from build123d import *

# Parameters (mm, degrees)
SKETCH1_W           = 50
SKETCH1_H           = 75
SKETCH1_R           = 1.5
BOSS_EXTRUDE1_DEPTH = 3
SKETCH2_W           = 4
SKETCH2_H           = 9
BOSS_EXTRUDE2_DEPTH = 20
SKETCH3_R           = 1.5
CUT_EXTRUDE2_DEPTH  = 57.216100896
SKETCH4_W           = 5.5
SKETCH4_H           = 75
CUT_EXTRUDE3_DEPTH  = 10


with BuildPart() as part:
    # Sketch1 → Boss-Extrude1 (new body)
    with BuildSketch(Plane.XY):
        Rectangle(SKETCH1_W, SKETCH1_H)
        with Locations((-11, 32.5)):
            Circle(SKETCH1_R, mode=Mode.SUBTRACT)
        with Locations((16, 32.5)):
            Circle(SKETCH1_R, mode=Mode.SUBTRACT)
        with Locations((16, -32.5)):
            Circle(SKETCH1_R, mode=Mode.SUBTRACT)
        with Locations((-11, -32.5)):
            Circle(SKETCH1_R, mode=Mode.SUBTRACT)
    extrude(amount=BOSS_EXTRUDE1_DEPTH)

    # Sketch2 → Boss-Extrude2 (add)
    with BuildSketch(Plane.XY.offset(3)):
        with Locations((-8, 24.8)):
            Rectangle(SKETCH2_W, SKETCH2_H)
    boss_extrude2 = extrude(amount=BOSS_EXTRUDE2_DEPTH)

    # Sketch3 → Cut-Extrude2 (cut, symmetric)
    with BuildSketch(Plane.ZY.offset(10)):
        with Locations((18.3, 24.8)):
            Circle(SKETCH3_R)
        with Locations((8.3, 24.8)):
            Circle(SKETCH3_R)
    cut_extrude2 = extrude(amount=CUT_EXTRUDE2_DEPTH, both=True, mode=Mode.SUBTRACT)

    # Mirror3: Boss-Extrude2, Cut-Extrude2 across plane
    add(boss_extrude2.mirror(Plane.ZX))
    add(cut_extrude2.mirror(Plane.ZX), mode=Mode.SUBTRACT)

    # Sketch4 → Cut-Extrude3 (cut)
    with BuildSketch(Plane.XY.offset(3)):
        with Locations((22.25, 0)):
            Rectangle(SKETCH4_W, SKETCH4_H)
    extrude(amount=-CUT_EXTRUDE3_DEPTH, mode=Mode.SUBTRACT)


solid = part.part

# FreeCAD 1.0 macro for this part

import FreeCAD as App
import Part
import Sketcher

V = App.Vector
Q = App.Units.Quantity


def add_polygon(sketch, points):
    """Adds a closed chain of lines whose ends are joined by coincident constraints."""
    first, n = sketch.GeometryCount, len(points)
    for a, b in zip(points, points[1:] + points[:1]):
        sketch.addGeometry(Part.LineSegment(App.Vector(*a, 0), App.Vector(*b, 0)), False)
    for i in range(n):
        sketch.addConstraint(Sketcher.Constraint("Coincident", first + i, 2, first + (i + 1) % n, 1))

doc = App.newDocument("Part")
body = doc.addObject("PartDesign::Body", "Body")

sketch1 = body.newObject("Sketcher::SketchObject", "Sketch")
sketch1.AttachmentSupport = (doc.getObject("XY_Plane"), [""])
sketch1.MapMode = "FlatFace"
add_polygon(sketch1, [(-25, 37.5), (-25, -37.5), (25, -37.5), (25, 37.5)])
sketch1.addGeometry(Part.Circle(V(-11, -32.5, 0), V(0, 0, 1), 1.5), False)
sketch1.addGeometry(Part.Circle(V(16, -32.5, 0), V(0, 0, 1), 1.5), False)
sketch1.addGeometry(Part.Circle(V(-11, 32.5, 0), V(0, 0, 1), 1.5), False)
sketch1.addGeometry(Part.Circle(V(16, 32.5, 0), V(0, 0, 1), 1.5), False)
sketch1.addConstraint([
    Sketcher.Constraint("Vertical", 0),
    Sketcher.Constraint("Horizontal", 1),
    Sketcher.Constraint("Vertical", 2),
    Sketcher.Constraint("Horizontal", 3),
    Sketcher.Constraint("Equal", 4, 5),
    Sketcher.Constraint("Equal", 5, 6),
    Sketcher.Constraint("Equal", 6, 7),
    Sketcher.Constraint("Symmetric", 0, 2, 2, 2, -1, 1),
    Sketcher.Constraint("Symmetric", 4, 3, 6, 3, -1),
    Sketcher.Constraint("Symmetric", 5, 3, 7, 3, -1),
    Sketcher.Constraint("Horizontal", 4, 3, 5, 3),
    Sketcher.Constraint("Diameter", 4, Q("3 mm")),
    Sketcher.Constraint("DistanceX", 1, 1, 1, 2, Q("50 mm")),
    Sketcher.Constraint("DistanceY", 0, 2, 0, 1, Q("75 mm")),
    Sketcher.Constraint("DistanceX", 4, 3, -1, 1, Q("11 mm")),
    Sketcher.Constraint("DistanceX", -1, 1, 5, 3, Q("16 mm")),
    Sketcher.Constraint("DistanceY", 4, 3, 6, 3, Q("65 mm")),
])
pad1 = body.newObject("PartDesign::Pad", "Pad")
pad1.Profile = sketch1
pad1.Length = 3

sketch2 = body.newObject("Sketcher::SketchObject", "Sketch001")
sketch2.AttachmentSupport = (doc.getObject("XY_Plane"), [""])
sketch2.MapMode = "FlatFace"
sketch2.AttachmentOffset = App.Placement(V(0, 0, 3), App.Rotation())
add_polygon(sketch2, [(-10, 29.3), (-10, 20.3), (-6, 20.3), (-6, 29.3)])
sketch2.addConstraint([
    Sketcher.Constraint("Vertical", 0),
    Sketcher.Constraint("Horizontal", 1),
    Sketcher.Constraint("Vertical", 2),
    Sketcher.Constraint("Horizontal", 3),
    Sketcher.Constraint("DistanceX", 1, 1, 1, 2, Q("4 mm")),
    Sketcher.Constraint("DistanceY", 0, 2, 0, 1, Q("9 mm")),
    Sketcher.Constraint("DistanceX", 0, 2, -1, 1, Q("10 mm")),
    Sketcher.Constraint("DistanceY", -1, 1, 0, 2, Q("20.3 mm")),
])
pad2 = body.newObject("PartDesign::Pad", "Pad001")
pad2.Profile = sketch2
pad2.Length = 20

sketch3 = body.newObject("Sketcher::SketchObject", "Sketch002")
sketch3.AttachmentSupport = (doc.getObject("YZ_Plane"), [""])
sketch3.MapMode = "FlatFace"
sketch3.AttachmentOffset = App.Placement(V(0, 0, -10), App.Rotation())
sketch3.addGeometry([
    Part.Circle(V(24.8, 18.3, 0), V(0, 0, 1), 1.5),
    Part.Circle(V(24.8, 8.3, 0), V(0, 0, 1), 1.5),
], False)
sketch3.addConstraint([
    Sketcher.Constraint("Equal", 0, 1),
    Sketcher.Constraint("Vertical", 0, 3, 1, 3),
    Sketcher.Constraint("Diameter", 0, Q("3 mm")),
    Sketcher.Constraint("DistanceY", 1, 3, 0, 3, Q("10 mm")),
    Sketcher.Constraint("DistanceX", -1, 1, 0, 3, Q("24.8 mm")),
    Sketcher.Constraint("DistanceY", -1, 1, 0, 3, Q("18.3 mm")),
])
pocket1 = body.newObject("PartDesign::Pocket", "Pocket")
pocket1.Profile = sketch3
pocket1.Length = 114.432202
pocket1.Midplane = True
doc.recompute()

mirrored = body.newObject("PartDesign::Mirrored", "Mirrored")
mirrored.Originals = [pad2, pocket1]
mirrored.MirrorPlane = (doc.getObject("XZ_Plane"), [""])
body.Tip = mirrored

sketch4 = body.newObject("Sketcher::SketchObject", "Sketch003")
sketch4.AttachmentSupport = (doc.getObject("XY_Plane"), [""])
sketch4.MapMode = "FlatFace"
sketch4.AttachmentOffset = App.Placement(V(0, 0, 3), App.Rotation())
add_polygon(sketch4, [(19.5, 37.5), (19.5, -37.5), (25, -37.5), (25, 37.5)])
sketch4.addConstraint([
    Sketcher.Constraint("Vertical", 0),
    Sketcher.Constraint("Horizontal", 1),
    Sketcher.Constraint("Vertical", 2),
    Sketcher.Constraint("Horizontal", 3),
    Sketcher.Constraint("DistanceY", 0, 2, 0, 1, Q("75 mm")),
    Sketcher.Constraint("DistanceX", 1, 1, 1, 2, Q("5.5 mm")),
    Sketcher.Constraint("DistanceX", -1, 1, 1, 2, Q("25 mm")),
    Sketcher.Constraint("DistanceY", 0, 2, -1, 1, Q("37.5 mm")),
])
pocket2 = body.newObject("PartDesign::Pocket", "Pocket001")
pocket2.Profile = sketch4
pocket2.Length = 10

doc.recompute()
